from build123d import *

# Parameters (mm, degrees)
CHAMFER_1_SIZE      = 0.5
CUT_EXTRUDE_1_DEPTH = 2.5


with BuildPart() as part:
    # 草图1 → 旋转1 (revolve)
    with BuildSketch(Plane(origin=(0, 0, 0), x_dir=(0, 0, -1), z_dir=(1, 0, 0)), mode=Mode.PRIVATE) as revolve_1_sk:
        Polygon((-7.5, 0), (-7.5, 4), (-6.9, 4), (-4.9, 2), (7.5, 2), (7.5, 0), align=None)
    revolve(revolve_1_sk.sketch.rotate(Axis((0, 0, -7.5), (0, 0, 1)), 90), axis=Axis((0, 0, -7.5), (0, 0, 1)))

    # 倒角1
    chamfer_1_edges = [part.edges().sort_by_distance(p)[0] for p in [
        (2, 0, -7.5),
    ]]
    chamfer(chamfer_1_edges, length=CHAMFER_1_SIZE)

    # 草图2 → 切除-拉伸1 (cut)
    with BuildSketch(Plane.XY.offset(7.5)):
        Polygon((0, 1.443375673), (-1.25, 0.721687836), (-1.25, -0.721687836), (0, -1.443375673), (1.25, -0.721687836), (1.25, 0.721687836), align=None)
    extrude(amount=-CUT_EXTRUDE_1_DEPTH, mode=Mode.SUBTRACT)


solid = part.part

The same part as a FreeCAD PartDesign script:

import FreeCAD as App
import Part
import Sketcher
Q = App.Units.Quantity


def edges_at(feature, points):
    """Names of the edges that pass closest to the given points."""
    edges = feature.Shape.Edges
    near = lambda p: min(range(len(edges)), key=lambda i: edges[i].distToShape(Part.Vertex(*p))[0])
    return sorted({f"Edge{near(p) + 1}" for p in points})

doc = App.newDocument("Part")
params = doc.addObject("Spreadsheet::Sheet", "Params")
for row, (alias, value) in enumerate([
    ("sketch1_width", "4 mm"),
    ("sketch1_width2", "2 mm"),
    ("sketch1_height", "15 mm"),
    ("sketch1_height2", "12.4 mm"),
    ("revolution_angle", "360 deg"),
    ("chamfer_size", "0.5 mm"),
    ("pocket1_length", "2.5 mm"),
], start=1):
    params.set(f"A{row}", alias)
    params.set(f"B{row}", "=" + value)
    params.setAlias(f"B{row}", alias)

body = doc.addObject("PartDesign::Body", "Body")

# Sketch on YZ plane
sketch1 = body.newObject("Sketcher::SketchObject", "Sketch")
sketch1.AttachmentSupport = (doc.getObject("YZ_Plane"), [""])
sketch1.MapMode = "FlatFace"
sketch1.addGeometry([
    Part.LineSegment(App.Vector(4, 7.5, 0), App.Vector(0, 7.5, 0)),  # 0
    Part.LineSegment(App.Vector(0, 7.5, 0), App.Vector(0, -7.5, 0)),  # 1
    Part.LineSegment(App.Vector(0, -7.5, 0), App.Vector(2, -7.5, 0)),  # 2
    Part.LineSegment(App.Vector(2, -7.5, 0), App.Vector(2, 4.9, 0)),  # 3
    Part.LineSegment(App.Vector(2, 4.9, 0), App.Vector(4, 6.9, 0)),  # 4
    Part.LineSegment(App.Vector(4, 6.9, 0), App.Vector(4, 7.5, 0)),  # 5
], False)
sketch1.addConstraint([
    Sketcher.Constraint("Coincident", 0, 2, 1, 1),
    Sketcher.Constraint("Coincident", 1, 2, 2, 1),
    Sketcher.Constraint("Coincident", 2, 2, 3, 1),
    Sketcher.Constraint("Coincident", 3, 2, 4, 1),
    Sketcher.Constraint("Coincident", 4, 2, 5, 1),
    Sketcher.Constraint("Coincident", 5, 2, 0, 1),
    Sketcher.Constraint("Horizontal", 0),
    Sketcher.Constraint("Vertical", 1),
    Sketcher.Constraint("Horizontal", 2),
    Sketcher.Constraint("Vertical", 3),
    Sketcher.Constraint("Vertical", 5),
    Sketcher.Constraint("Symmetric", 0, 2, 1, 2, -1, 1),
    Sketcher.Constraint("DistanceX", 0, 2, 0, 1, Q("4 mm")),
    Sketcher.Constraint("DistanceX", 2, 1, 2, 2, Q("2 mm")),
    Sketcher.Constraint("DistanceY", 1, 2, 1, 1, Q("15 mm")),
    Sketcher.Constraint("Angle", 4, Q("45 deg")),
    Sketcher.Constraint("DistanceY", 3, 1, 3, 2, Q("12.4 mm")),
])
sketch1.setExpression("Constraints[12]", "Params.sketch1_width")
sketch1.setExpression("Constraints[13]", "Params.sketch1_width2")
sketch1.setExpression("Constraints[14]", "Params.sketch1_height")
sketch1.setExpression("Constraints[16]", "Params.sketch1_height2")
revolution = body.newObject("PartDesign::Revolution", "Revolution")
revolution.Profile = sketch1
revolution.ReferenceAxis = (sketch1, ["V_Axis"])
revolution.setExpression("Angle", "Params.revolution_angle")
doc.recompute()

chamfer = body.newObject("PartDesign::Chamfer", "Chamfer")
chamfer.Base = (revolution, edges_at(revolution, [(2, 0, -7.5)]))
chamfer.setExpression("Size", "Params.chamfer_size")

# Sketch on XY plane
sketch2 = body.newObject("Sketcher::SketchObject", "Sketch001")
sketch2.AttachmentSupport = (doc.getObject("XY_Plane"), [""])
sketch2.MapMode = "FlatFace"
sketch2.AttachmentOffset = App.Placement(App.Vector(0, 0, 7.5), App.Rotation())
sketch2.addGeometry([
    Part.LineSegment(App.Vector(0, 1.4, 0), App.Vector(-1.2, 0.7, 0)),  # 0
    Part.LineSegment(App.Vector(-1.2, 0.7, 0), App.Vector(-1.2, -0.7, 0)),  # 1
    Part.LineSegment(App.Vector(-1.2, -0.7, 0), App.Vector(0, -1.4, 0)),  # 2
    Part.LineSegment(App.Vector(0, -1.4, 0), App.Vector(1.2, -0.7, 0)),  # 3
    Part.LineSegment(App.Vector(1.2, -0.7, 0), App.Vector(1.2, 0.7, 0)),  # 4
    Part.LineSegment(App.Vector(1.2, 0.7, 0), App.Vector(0, 1.4, 0)),  # 5
], False)
sketch2.addConstraint([
    Sketcher.Constraint("Coincident", 0, 2, 1, 1),
    Sketcher.Constraint("Coincident", 1, 2, 2, 1),
    Sketcher.Constraint("Coincident", 2, 2, 3, 1),
    Sketcher.Constraint("Coincident", 3, 2, 4, 1),
    Sketcher.Constraint("Coincident", 4, 2, 5, 1),
    Sketcher.Constraint("Coincident", 5, 2, 0, 1),
    Sketcher.Constraint("Vertical", 1),
    Sketcher.Constraint("Vertical", 4),
    Sketcher.Constraint("Symmetric", 0, 2, 3, 2, -1, 1),
    Sketcher.Constraint("Symmetric", 2, 2, 5, 2, -1, 1),
    Sketcher.Constraint("PointOnObject", 2, 2, -2),
    Sketcher.Constraint("Parallel", 2, 5),
    Sketcher.Constraint("Horizontal", 1, 2, 3, 2),
    Sketcher.Constraint("Angle", 0, Q("-150 deg")),
    Sketcher.Constraint("DistanceX", 1, 2, 3, 2, Q("2.5 mm")),
    Sketcher.Constraint("DistanceY", 1, 2, 1, 1, Q("1.443376 mm")),
])
pocket1 = body.newObject("PartDesign::Pocket", "Pocket")
pocket1.Profile = sketch2
pocket1.setExpression("Length", "Params.pocket1_length")

doc.recompute()
